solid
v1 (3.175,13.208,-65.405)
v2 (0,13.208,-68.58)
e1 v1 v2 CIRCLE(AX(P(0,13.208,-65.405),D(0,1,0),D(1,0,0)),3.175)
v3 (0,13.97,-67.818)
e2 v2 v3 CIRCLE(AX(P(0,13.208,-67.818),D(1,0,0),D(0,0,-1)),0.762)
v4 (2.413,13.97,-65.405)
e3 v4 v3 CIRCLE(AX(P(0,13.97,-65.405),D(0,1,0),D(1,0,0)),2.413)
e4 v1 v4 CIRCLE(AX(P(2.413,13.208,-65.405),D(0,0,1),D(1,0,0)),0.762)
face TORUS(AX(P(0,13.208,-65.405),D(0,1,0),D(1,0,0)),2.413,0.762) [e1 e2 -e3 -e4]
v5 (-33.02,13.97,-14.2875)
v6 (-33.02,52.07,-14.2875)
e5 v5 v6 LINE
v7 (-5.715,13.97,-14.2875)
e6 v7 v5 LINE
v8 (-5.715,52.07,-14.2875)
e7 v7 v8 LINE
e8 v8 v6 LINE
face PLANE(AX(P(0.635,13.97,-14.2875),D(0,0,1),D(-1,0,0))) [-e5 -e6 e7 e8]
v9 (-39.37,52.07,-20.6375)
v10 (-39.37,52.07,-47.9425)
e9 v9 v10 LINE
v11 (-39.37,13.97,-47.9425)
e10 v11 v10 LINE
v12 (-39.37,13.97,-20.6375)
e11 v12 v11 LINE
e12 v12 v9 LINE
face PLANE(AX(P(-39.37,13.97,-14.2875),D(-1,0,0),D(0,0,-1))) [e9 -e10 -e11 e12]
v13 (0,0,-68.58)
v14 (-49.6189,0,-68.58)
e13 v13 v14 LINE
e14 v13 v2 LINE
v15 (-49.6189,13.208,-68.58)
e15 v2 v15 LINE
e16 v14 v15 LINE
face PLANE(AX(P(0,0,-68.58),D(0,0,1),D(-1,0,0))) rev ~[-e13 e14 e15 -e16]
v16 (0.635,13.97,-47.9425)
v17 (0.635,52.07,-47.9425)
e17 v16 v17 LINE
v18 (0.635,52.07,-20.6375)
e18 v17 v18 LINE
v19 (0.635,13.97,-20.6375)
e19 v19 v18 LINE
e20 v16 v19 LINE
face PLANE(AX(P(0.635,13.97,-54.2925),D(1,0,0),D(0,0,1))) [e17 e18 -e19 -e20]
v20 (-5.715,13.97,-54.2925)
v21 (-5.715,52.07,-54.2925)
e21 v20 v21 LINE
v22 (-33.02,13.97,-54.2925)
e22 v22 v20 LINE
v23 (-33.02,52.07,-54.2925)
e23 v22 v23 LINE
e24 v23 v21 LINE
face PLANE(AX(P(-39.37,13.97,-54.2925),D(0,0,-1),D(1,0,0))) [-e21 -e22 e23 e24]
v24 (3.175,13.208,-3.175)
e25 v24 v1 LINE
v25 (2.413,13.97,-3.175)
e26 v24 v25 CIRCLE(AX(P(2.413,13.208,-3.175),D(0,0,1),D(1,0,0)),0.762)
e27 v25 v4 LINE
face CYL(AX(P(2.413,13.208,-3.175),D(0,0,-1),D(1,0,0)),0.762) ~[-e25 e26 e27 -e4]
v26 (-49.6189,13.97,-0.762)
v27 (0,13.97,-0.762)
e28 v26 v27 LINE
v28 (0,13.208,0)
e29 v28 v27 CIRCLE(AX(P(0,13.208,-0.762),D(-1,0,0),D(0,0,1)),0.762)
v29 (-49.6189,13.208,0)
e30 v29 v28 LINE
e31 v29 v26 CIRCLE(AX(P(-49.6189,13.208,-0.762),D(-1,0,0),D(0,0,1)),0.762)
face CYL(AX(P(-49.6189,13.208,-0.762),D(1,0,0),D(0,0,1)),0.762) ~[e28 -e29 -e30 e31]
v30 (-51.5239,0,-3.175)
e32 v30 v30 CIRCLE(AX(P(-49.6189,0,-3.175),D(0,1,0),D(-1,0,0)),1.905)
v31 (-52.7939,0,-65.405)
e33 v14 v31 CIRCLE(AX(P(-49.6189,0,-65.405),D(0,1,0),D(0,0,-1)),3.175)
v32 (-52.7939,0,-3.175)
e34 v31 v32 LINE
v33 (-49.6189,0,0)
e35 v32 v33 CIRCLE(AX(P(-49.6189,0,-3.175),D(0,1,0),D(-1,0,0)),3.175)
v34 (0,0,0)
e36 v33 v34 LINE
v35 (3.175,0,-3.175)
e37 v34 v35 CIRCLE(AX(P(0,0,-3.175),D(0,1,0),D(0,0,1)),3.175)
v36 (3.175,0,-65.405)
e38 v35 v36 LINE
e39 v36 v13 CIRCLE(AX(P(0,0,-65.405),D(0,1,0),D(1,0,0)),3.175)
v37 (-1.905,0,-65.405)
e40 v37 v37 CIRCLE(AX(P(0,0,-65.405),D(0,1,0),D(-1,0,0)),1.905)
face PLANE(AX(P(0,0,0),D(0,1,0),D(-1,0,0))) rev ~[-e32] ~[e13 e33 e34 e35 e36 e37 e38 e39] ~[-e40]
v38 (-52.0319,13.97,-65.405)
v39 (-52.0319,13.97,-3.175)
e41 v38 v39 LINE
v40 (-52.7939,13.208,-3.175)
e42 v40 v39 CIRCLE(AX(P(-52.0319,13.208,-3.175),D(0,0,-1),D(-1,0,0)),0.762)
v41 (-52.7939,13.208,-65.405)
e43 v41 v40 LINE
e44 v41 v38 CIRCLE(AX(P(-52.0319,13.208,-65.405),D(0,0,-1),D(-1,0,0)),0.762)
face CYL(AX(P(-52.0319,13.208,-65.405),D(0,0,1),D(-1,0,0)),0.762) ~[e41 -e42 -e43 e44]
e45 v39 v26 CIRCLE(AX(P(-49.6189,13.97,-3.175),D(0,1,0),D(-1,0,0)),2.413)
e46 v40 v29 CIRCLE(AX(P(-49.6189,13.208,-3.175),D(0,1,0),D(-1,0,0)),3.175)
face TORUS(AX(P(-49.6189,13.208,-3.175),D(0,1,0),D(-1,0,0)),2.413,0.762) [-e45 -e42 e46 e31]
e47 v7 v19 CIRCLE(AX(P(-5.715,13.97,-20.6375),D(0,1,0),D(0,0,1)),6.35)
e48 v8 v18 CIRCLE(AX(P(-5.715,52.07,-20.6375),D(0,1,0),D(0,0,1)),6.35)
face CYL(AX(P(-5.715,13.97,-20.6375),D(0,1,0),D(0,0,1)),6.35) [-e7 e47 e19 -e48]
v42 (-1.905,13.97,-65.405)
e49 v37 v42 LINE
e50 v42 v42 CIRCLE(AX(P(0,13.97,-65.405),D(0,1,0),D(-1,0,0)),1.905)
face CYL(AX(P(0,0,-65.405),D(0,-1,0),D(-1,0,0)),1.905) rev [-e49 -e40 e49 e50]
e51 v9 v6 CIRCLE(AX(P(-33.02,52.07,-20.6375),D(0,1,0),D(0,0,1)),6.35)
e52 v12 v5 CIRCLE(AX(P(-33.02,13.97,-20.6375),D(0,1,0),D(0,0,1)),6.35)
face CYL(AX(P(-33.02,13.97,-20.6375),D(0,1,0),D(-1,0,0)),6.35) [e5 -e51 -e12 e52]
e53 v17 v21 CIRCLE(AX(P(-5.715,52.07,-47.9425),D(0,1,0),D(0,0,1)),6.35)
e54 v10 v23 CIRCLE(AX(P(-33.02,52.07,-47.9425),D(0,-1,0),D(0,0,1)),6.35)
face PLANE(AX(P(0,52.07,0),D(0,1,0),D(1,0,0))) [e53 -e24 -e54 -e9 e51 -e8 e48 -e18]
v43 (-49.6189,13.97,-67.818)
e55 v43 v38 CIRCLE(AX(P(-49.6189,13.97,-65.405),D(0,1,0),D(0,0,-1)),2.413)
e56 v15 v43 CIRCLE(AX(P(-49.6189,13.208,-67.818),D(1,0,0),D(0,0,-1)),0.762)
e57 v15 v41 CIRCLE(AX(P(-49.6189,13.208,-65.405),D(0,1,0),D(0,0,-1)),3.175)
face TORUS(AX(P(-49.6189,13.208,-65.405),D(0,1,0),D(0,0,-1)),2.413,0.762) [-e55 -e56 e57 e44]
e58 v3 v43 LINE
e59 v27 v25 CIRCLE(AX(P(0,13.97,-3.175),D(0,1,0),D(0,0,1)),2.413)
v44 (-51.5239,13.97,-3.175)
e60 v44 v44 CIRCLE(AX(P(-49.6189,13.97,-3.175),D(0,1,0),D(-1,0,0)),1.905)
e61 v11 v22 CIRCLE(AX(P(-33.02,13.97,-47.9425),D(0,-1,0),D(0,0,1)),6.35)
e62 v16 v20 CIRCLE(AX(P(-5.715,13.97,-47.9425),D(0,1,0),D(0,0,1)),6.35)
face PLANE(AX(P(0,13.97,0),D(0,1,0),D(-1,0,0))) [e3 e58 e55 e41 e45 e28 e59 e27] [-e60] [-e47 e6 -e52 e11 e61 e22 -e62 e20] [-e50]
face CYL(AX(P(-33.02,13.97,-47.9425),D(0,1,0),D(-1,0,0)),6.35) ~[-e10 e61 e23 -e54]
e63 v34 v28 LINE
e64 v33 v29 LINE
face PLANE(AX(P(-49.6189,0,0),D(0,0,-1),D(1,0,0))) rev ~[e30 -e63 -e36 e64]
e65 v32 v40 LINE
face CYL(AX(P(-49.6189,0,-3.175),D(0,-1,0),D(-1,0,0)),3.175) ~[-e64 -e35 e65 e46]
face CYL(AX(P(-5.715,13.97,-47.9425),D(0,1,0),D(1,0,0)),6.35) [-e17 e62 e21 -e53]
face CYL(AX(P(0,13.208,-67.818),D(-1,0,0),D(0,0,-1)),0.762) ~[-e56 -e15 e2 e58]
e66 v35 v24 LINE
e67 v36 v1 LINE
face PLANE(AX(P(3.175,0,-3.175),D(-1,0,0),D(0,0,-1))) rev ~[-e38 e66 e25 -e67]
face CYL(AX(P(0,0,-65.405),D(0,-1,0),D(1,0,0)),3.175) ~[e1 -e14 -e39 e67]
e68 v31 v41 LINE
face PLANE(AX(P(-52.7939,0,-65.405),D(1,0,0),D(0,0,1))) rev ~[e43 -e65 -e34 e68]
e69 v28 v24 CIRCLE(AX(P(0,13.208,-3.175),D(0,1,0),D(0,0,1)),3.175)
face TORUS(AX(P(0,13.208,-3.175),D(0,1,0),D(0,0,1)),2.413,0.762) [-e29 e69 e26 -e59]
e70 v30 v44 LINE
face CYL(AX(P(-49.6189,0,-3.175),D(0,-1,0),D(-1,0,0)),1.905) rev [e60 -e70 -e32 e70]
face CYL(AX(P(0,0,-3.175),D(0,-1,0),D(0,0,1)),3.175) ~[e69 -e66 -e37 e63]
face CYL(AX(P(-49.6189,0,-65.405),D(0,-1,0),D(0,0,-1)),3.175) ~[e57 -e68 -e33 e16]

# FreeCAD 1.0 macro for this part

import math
import FreeCAD as App
import Part
import Sketcher
from FreeCAD import Vector
Q = App.Units.Quantity


def edges_at(feature, points):
    """Names of the edges that pass closest to the given points."""
    edges = feature.Shape.Edges
    near = lambda p: min(range(len(edges)), key=lambda i: edges[i].distToShape(Part.Vertex(*p))[0])
    return sorted({f"Edge{near(p) + 1}" for p in points})

doc = App.newDocument("Part")
body = doc.addObject("PartDesign::Body", "Body")

# Sketch on XZ plane
sketch1 = doc.addObject("Sketcher::SketchObject", "Sketch")
body.addObject(sketch1)
sketch1.AttachmentSupport = (doc.XZ_Plane, [""])
sketch1.MapMode = "FlatFace"
sketch1.addGeometry(Part.LineSegment(Vector(0, -68.58, 0), Vector(-49.6189, -68.58, 0)), False)
sketch1.addGeometry(Part.ArcOfCircle(Part.Circle(Vector(-49.6189, -65.405, 0), Vector(0, 0, 1), 3.175), math.radians(180), math.radians(270)), False)
sketch1.addGeometry(Part.LineSegment(Vector(-52.7939, -65.405, 0), Vector(-52.7939, -3.175, 0)), False)
sketch1.addGeometry(Part.ArcOfCircle(Part.Circle(Vector(-49.6189, -3.175, 0), Vector(0, 0, 1), 3.175), math.radians(90), math.radians(180)), False)
sketch1.addGeometry(Part.LineSegment(Vector(-49.6189, 0, 0), Vector(0, 0, 0)), False)
sketch1.addGeometry(Part.ArcOfCircle(Part.Circle(Vector(0, -3.175, 0), Vector(0, 0, 1), 3.175), math.radians(0), math.radians(90)), False)
sketch1.addGeometry(Part.LineSegment(Vector(3.175, -3.175, 0), Vector(3.175, -65.405, 0)), False)
sketch1.addGeometry(Part.ArcOfCircle(Part.Circle(Vector(0, -65.405, 0), Vector(0, 0, 1), 3.175), math.radians(-90), math.radians(0)), False)
sketch1.addGeometry(Part.Circle(Vector(0, -65.405, 0), Vector(0, 0, 1), 1.905), False)
sketch1.addGeometry(Part.Circle(Vector(-49.6189, -3.175, 0), Vector(0, 0, 1), 1.905), False)
sketch1.addConstraint(Sketcher.Constraint("Tangent", 0, 2, 1, 2))
sketch1.addConstraint(Sketcher.Constraint("Tangent", 1, 1, 2, 1))
sketch1.addConstraint(Sketcher.Constraint("Tangent", 2, 2, 3, 2))
sketch1.addConstraint(Sketcher.Constraint("Tangent", 3, 1, 4, 1))
sketch1.addConstraint(Sketcher.Constraint("Tangent", 4, 2, 5, 2))
sketch1.addConstraint(Sketcher.Constraint("Tangent", 5, 1, 6, 1))
sketch1.addConstraint(Sketcher.Constraint("Tangent", 6, 2, 7, 2))
sketch1.addConstraint(Sketcher.Constraint("Tangent", 7, 1, 0, 1))
sketch1.addConstraint(Sketcher.Constraint("Horizontal", 0))
sketch1.addConstraint(Sketcher.Constraint("Vertical", 2))
sketch1.addConstraint(Sketcher.Constraint("Horizontal", 4))
sketch1.addConstraint(Sketcher.Constraint("Vertical", 6))
sketch1.addConstraint(Sketcher.Constraint("Coincident", 4, 2, -1, 1))
sketch1.addConstraint(Sketcher.Constraint("Coincident", 8, 3, 7, 3))
sketch1.addConstraint(Sketcher.Constraint("Coincident", 9, 3, 3, 3))
sketch1.addConstraint(Sketcher.Constraint("Equal", 1, 3))
sketch1.addConstraint(Sketcher.Constraint("Equal", 3, 5))
sketch1.addConstraint(Sketcher.Constraint("Equal", 5, 7))
sketch1.addConstraint(Sketcher.Constraint("Equal", 8, 9))
sketch1.addConstraint(Sketcher.Constraint("Diameter", 8, Q("0.15 in")))
sketch1.addConstraint(Sketcher.Constraint("Radius", 1, Q("0.125 in")))
sketch1.addConstraint(Sketcher.Constraint("DistanceY", 2, 1, 2, 2, Q("2.45 in")))
sketch1.addConstraint(Sketcher.Constraint("DistanceX", 0, 2, 0, 1, Q("1.9535 in")))
pad1 = doc.addObject("PartDesign::Pad", "Pad")
body.addObject(pad1)
pad1.Profile = sketch1
pad1.Length = Q("0.55 in")
pad1.Reversed = True
doc.recompute()

fillet = doc.addObject("PartDesign::Fillet", "Fillet")
body.addObject(fillet)
fillet.Base = (pad1, edges_at(pad1, [
    (-52.794, 13.97, -34.29),
    (-51.864, 13.97, -0.93),
    (-24.809, 13.97, 0),
    (2.245, 13.97, -0.93),
    (3.175, 13.97, -34.29),
    (2.245, 13.97, -67.65),
    (-24.809, 13.97, -68.58),
    (-51.864, 13.97, -67.65),
]))
fillet.Radius = Q("0.03 in")

# Sketch on XZ plane
sketch2 = doc.addObject("Sketcher::SketchObject", "Sketch001")
body.addObject(sketch2)
sketch2.AttachmentSupport = (doc.XZ_Plane, [""])
sketch2.MapMode = "FlatFace"
sketch2.AttachmentOffset = App.Placement(Vector(0, 0, -0.55 * 25.4), App.Rotation())
sketch2.addGeometry(Part.LineSegment(Vector(0.635, -54.2925, 0), Vector(-39.37, -54.2925, 0)), False)
sketch2.addGeometry(Part.LineSegment(Vector(-39.37, -54.2925, 0), Vector(-39.37, -14.2875, 0)), False)
sketch2.addGeometry(Part.LineSegment(Vector(-39.37, -14.2875, 0), Vector(0.635, -14.2875, 0)), False)
sketch2.addGeometry(Part.LineSegment(Vector(0.635, -14.2875, 0), Vector(0.635, -54.2925, 0)), False)
sketch2.addConstraint(Sketcher.Constraint("Coincident", 0, 2, 1, 1))
sketch2.addConstraint(Sketcher.Constraint("Coincident", 1, 2, 2, 1))
sketch2.addConstraint(Sketcher.Constraint("Coincident", 2, 2, 3, 1))
sketch2.addConstraint(Sketcher.Constraint("Coincident", 3, 2, 0, 1))
sketch2.addConstraint(Sketcher.Constraint("Horizontal", 0))
sketch2.addConstraint(Sketcher.Constraint("Vertical", 1))
sketch2.addConstraint(Sketcher.Constraint("Horizontal", 2))
sketch2.addConstraint(Sketcher.Constraint("Vertical", 3))
sketch2.addConstraint(Sketcher.Constraint("Equal", 2, 1))
sketch2.addConstraint(Sketcher.Constraint("DistanceX", 0, 2, 0, 1, Q("1.575 in")))
sketch2.addConstraint(Sketcher.Constraint("DistanceX", 0, 2, -1, 1, Q("1.55 in")))
sketch2.addConstraint(Sketcher.Constraint("DistanceY", 1, 2, -1, 1, Q("0.5625 in")))
pad2 = doc.addObject("PartDesign::Pad", "Pad001")
body.addObject(pad2)
pad2.Profile = sketch2
pad2.Length = Q("1.5 in")
pad2.Reversed = True
doc.recompute()

fillet2 = doc.addObject("PartDesign::Fillet", "Fillet001")
body.addObject(fillet2)
fillet2.Base = (pad2, edges_at(pad2, [
    (-39.37, 33.02, -14.287),
    (0.635, 33.02, -14.287),
    (0.635, 33.02, -54.292),
    (-39.37, 33.02, -54.292),
]))
fillet2.Radius = Q("0.25 in")

doc.recompute()
